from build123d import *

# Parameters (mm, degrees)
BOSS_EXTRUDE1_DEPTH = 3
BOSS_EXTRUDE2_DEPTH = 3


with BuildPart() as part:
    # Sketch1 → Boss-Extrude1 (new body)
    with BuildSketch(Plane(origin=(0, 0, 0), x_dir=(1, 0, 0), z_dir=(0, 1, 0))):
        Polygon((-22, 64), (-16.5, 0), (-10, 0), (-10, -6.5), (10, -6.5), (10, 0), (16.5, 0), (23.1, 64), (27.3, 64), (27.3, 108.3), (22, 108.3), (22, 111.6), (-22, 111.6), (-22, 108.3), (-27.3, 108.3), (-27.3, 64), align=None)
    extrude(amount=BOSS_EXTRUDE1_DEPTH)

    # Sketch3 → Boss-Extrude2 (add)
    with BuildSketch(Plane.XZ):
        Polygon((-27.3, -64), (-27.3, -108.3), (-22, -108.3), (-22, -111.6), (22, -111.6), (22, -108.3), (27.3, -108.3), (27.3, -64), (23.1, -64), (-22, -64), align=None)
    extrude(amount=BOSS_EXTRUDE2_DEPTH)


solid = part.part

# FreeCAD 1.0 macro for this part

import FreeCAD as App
import Part
import Sketcher
from FreeCAD import Vector
Q = App.Units.Quantity

doc = App.newDocument("Part")
body = doc.addObject("PartDesign::Body", "Body")

# Sketch on XZ plane
sketch1 = body.newObject("Sketcher::SketchObject", "Sketch")
sketch1.AttachmentSupport = (doc.getObject("XZ_Plane"), [""])
sketch1.MapMode = "FlatFace"
sketch1.addGeometry([
    Part.LineSegment(Vector(-22, -64, 0), Vector(-16.5, 0, 0)),  # 0
    Part.LineSegment(Vector(-16.5, 0, 0), Vector(-10, 0, 0)),  # 1
    Part.LineSegment(Vector(-10, 0, 0), Vector(-10, 6.5, 0)),  # 2
    Part.LineSegment(Vector(-10, 6.5, 0), Vector(10, 6.5, 0)),  # 3
    Part.LineSegment(Vector(10, 6.5, 0), Vector(10, 0, 0)),  # 4
    Part.LineSegment(Vector(10, 0, 0), Vector(16.5, 0, 0)),  # 5
    Part.LineSegment(Vector(16.5, 0, 0), Vector(23.1, -64, 0)),  # 6
    Part.LineSegment(Vector(23.1, -64, 0), Vector(27.3, -64, 0)),  # 7
    Part.LineSegment(Vector(27.3, -64, 0), Vector(27.3, -108.3, 0)),  # 8
    Part.LineSegment(Vector(27.3, -108.3, 0), Vector(22, -108.3, 0)),  # 9
    Part.LineSegment(Vector(22, -108.3, 0), Vector(22, -111.6, 0)),  # 10
    Part.LineSegment(Vector(22, -111.6, 0), Vector(-22, -111.6, 0)),  # 11
    Part.LineSegment(Vector(-22, -111.6, 0), Vector(-22, -108.3, 0)),  # 12
    Part.LineSegment(Vector(-22, -108.3, 0), Vector(-27.3, -108.3, 0)),  # 13
    Part.LineSegment(Vector(-27.3, -108.3, 0), Vector(-27.3, -64, 0)),  # 14
    Part.LineSegment(Vector(-27.3, -64, 0), Vector(-22, -64, 0)),  # 15
], False)
sketch1.addConstraint([
    Sketcher.Constraint("Coincident", 0, 2, 1, 1),
    Sketcher.Constraint("Coincident", 1, 2, 2, 1),
    Sketcher.Constraint("Coincident", 2, 2, 3, 1),
    Sketcher.Constraint("Coincident", 3, 2, 4, 1),
    Sketcher.Constraint("Coincident", 4, 2, 5, 1),
    Sketcher.Constraint("Coincident", 5, 2, 6, 1),
    Sketcher.Constraint("Coincident", 6, 2, 7, 1),
    Sketcher.Constraint("Coincident", 7, 2, 8, 1),
    Sketcher.Constraint("Coincident", 8, 2, 9, 1),
    Sketcher.Constraint("Coincident", 9, 2, 10, 1),
    Sketcher.Constraint("Coincident", 10, 2, 11, 1),
    Sketcher.Constraint("Coincident", 11, 2, 12, 1),
    Sketcher.Constraint("Coincident", 12, 2, 13, 1),
    Sketcher.Constraint("Coincident", 13, 2, 14, 1),
    Sketcher.Constraint("Coincident", 14, 2, 15, 1),
    Sketcher.Constraint("Coincident", 15, 2, 0, 1),
    Sketcher.Constraint("Horizontal", 1),
    Sketcher.Constraint("Vertical", 2),
    Sketcher.Constraint("Horizontal", 3),
    Sketcher.Constraint("Vertical", 4),
    Sketcher.Constraint("Horizontal", 5),
    Sketcher.Constraint("Horizontal", 7),
    Sketcher.Constraint("Vertical", 8),
    Sketcher.Constraint("Horizontal", 9),
    Sketcher.Constraint("Vertical", 10),
    Sketcher.Constraint("Horizontal", 11),
    Sketcher.Constraint("Vertical", 12),
    Sketcher.Constraint("Horizontal", 13),
    Sketcher.Constraint("Vertical", 14),
    Sketcher.Constraint("Horizontal", 15),
    Sketcher.Constraint("Symmetric", 1, 2, 4, 2, -1, 1),
    Sketcher.Constraint("Symmetric", 0, 2, 5, 2, -2),
    Sketcher.Constraint("Symmetric", 9, 2, 12, 2, -2),
    Sketcher.Constraint("Symmetric", 7, 2, 14, 2, -2),
    Sketcher.Constraint("Vertical", 12, 2, 15, 2),
    Sketcher.Constraint("Equal", 5, 2),
    Sketcher.Constraint("DistanceX", 3, 1, 3, 2, Q("20 mm")),
    Sketcher.Constraint("DistanceX", 11, 2, 11, 1, Q("44 mm")),
    Sketcher.Constraint("DistanceX", 1, 1, 1, 2, Q("6.5 mm")),
    Sketcher.Constraint("DistanceX", 7, 1, 7, 2, Q("4.2 mm")),
    Sketcher.Constraint("DistanceX", 9, 2, 9, 1, Q("5.3 mm")),
    Sketcher.Constraint("DistanceY", 8, 2, 8, 1, Q("44.3 mm")),
    Sketcher.Constraint("DistanceY", 10, 2, 10, 1, Q("3.3 mm")),
    Sketcher.Constraint("DistanceY", 6, 2, -1, 1, Q("64 mm")),
])
pad1 = body.newObject("PartDesign::Pad", "Pad")
pad1.Profile = sketch1
pad1.Length = 3
pad1.Reversed = True

# Sketch on XZ plane
sketch2 = body.newObject("Sketcher::SketchObject", "Sketch001")
sketch2.AttachmentSupport = (doc.getObject("XZ_Plane"), [""])
sketch2.MapMode = "FlatFace"
sketch2.addGeometry([
    Part.LineSegment(Vector(-27.3, -64, 0), Vector(-27.3, -108.3, 0)),  # 0
    Part.LineSegment(Vector(-27.3, -108.3, 0), Vector(-22, -108.3, 0)),  # 1
    Part.LineSegment(Vector(-22, -108.3, 0), Vector(-22, -111.6, 0)),  # 2
    Part.LineSegment(Vector(-22, -111.6, 0), Vector(22, -111.6, 0)),  # 3
    Part.LineSegment(Vector(22, -111.6, 0), Vector(22, -108.3, 0)),  # 4
    Part.LineSegment(Vector(22, -108.3, 0), Vector(27.3, -108.3, 0)),  # 5
    Part.LineSegment(Vector(27.3, -108.3, 0), Vector(27.3, -64, 0)),  # 6
    Part.LineSegment(Vector(27.3, -64, 0), Vector(-27.3, -64, 0)),  # 7
], False)
sketch2.addConstraint([
    Sketcher.Constraint("Coincident", 0, 2, 1, 1),
    Sketcher.Constraint("Coincident", 1, 2, 2, 1),
    Sketcher.Constraint("Coincident", 2, 2, 3, 1),
    Sketcher.Constraint("Coincident", 3, 2, 4, 1),
    Sketcher.Constraint("Coincident", 4, 2, 5, 1),
    Sketcher.Constraint("Coincident", 5, 2, 6, 1),
    Sketcher.Constraint("Coincident", 6, 2, 7, 1),
    Sketcher.Constraint("Coincident", 7, 2, 0, 1),
    Sketcher.Constraint("Vertical", 0),
    Sketcher.Constraint("Horizontal", 1),
    Sketcher.Constraint("Vertical", 2),
    Sketcher.Constraint("Horizontal", 3),
    Sketcher.Constraint("Vertical", 4),
    Sketcher.Constraint("Horizontal", 5),
    Sketcher.Constraint("Vertical", 6),
    Sketcher.Constraint("Horizontal", 7),
    Sketcher.Constraint("Symmetric", 1, 2, 4, 2, -2),
    Sketcher.Constraint("Equal", 1, 5),
    Sketcher.Constraint("DistanceX", 3, 1, 3, 2, Q("44 mm")),
    Sketcher.Constraint("DistanceX", 1, 1, 1, 2, Q("5.3 mm")),
    Sketcher.Constraint("DistanceY", 0, 2, 0, 1, Q("44.3 mm")),
    Sketcher.Constraint("DistanceY", 2, 2, 2, 1, Q("3.3 mm")),
    Sketcher.Constraint("DistanceY", 6, 2, -1, 1, Q("64 mm")),
])
pad2 = body.newObject("PartDesign::Pad", "Pad001")
pad2.Profile = sketch2
pad2.Length = 3

doc.recompute()
